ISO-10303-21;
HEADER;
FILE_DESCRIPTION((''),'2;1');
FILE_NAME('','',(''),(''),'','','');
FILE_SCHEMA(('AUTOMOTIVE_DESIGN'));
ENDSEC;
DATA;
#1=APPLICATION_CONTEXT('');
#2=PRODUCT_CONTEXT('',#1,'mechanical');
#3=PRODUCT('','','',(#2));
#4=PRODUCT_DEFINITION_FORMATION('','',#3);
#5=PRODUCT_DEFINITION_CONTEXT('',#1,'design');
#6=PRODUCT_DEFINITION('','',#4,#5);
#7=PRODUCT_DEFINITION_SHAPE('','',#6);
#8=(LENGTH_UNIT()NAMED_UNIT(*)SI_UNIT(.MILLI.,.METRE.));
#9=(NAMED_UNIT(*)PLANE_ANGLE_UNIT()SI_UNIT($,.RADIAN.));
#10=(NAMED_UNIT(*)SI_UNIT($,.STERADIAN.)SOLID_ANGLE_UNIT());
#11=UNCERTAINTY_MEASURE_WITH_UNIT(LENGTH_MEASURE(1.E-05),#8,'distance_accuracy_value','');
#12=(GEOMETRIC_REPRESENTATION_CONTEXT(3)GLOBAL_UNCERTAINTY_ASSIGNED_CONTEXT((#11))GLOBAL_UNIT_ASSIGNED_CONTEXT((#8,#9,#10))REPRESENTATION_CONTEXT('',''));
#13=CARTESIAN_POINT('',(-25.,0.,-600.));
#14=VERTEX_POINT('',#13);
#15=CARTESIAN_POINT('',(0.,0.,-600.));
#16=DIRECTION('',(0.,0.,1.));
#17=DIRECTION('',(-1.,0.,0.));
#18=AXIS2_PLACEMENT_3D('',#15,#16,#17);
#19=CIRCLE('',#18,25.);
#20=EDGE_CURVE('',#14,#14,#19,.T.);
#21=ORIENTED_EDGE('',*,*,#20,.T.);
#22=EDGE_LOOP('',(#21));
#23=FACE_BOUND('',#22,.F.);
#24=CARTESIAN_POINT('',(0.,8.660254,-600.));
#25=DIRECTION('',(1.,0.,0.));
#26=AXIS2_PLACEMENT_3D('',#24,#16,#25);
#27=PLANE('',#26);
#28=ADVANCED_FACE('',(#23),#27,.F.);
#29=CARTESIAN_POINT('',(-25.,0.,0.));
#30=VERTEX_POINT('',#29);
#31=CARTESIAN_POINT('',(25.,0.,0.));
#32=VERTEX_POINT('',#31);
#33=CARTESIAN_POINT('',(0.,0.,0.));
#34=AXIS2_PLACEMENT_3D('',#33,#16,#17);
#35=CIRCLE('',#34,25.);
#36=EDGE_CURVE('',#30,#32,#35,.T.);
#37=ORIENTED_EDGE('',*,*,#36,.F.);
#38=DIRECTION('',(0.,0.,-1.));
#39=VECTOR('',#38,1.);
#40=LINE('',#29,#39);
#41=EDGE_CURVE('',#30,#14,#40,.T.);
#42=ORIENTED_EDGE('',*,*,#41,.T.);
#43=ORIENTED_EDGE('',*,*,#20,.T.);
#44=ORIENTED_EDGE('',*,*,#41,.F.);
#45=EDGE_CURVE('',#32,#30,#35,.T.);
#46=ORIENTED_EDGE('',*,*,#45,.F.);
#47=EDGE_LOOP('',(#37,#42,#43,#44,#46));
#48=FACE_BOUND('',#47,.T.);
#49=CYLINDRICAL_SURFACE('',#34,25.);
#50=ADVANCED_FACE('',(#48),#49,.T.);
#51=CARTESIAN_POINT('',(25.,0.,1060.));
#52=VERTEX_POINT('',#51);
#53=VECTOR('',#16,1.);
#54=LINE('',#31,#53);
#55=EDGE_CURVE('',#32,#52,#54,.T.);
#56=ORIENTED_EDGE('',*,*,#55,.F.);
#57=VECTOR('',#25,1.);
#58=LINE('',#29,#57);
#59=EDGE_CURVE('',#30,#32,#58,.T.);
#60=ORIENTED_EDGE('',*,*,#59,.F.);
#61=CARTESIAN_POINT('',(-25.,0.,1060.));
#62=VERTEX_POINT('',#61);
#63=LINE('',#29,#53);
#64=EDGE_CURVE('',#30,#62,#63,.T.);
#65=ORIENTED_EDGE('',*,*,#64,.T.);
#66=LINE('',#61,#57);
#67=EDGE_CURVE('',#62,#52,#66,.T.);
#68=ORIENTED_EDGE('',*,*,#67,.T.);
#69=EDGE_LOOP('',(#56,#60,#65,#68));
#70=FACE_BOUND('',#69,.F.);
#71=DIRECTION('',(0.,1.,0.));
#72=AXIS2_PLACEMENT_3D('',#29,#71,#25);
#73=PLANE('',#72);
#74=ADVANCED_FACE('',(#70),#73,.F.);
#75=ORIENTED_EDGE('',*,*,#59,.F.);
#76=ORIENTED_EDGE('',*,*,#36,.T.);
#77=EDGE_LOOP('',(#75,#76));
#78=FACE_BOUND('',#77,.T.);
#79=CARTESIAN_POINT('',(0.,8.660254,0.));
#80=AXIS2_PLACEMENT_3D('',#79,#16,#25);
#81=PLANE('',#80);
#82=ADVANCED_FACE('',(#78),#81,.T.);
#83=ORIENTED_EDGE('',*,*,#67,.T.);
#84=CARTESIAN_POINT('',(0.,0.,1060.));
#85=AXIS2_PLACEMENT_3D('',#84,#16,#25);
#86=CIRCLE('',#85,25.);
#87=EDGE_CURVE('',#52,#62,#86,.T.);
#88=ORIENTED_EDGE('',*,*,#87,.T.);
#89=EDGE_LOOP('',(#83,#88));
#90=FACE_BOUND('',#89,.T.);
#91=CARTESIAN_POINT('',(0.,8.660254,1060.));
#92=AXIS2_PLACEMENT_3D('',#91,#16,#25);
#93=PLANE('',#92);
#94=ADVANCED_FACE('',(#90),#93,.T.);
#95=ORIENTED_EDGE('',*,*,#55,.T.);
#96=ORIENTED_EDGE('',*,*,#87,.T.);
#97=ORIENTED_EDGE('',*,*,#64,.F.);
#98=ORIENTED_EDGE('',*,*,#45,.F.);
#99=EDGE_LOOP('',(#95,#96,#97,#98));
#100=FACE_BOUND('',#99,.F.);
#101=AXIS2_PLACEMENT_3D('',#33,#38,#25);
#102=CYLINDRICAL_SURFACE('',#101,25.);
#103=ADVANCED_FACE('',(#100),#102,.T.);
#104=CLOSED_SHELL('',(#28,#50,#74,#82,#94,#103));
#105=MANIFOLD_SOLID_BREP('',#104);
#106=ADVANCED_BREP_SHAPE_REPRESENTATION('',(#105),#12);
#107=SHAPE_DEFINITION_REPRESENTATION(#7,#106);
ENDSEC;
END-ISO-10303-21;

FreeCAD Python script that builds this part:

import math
import FreeCAD as App
import Part
import Sketcher
Q = App.Units.Quantity

doc = App.newDocument("Part")
params = doc.addObject("Spreadsheet::Sheet", "Params")
for row, (alias, value) in enumerate([
    ("sketch1_diameter", "50 mm"),
    ("pad1_length", "600 mm"),
    ("sketch2_radius", "25 mm"),
    ("pad2_length", "1060 mm"),
], start=1):
    params.set(f"A{row}", alias)
    params.set(f"B{row}", "=" + value)
    params.setAlias(f"B{row}", alias)

body = doc.addObject("PartDesign::Body", "Body")

# Sketch on XY plane
sketch1 = doc.addObject("Sketcher::SketchObject", "Sketch")
body.addObject(sketch1)
sketch1.AttachmentSupport = (doc.XY_Plane, [""])
sketch1.MapMode = "FlatFace"
sketch1.addGeometry(Part.Circle(App.Vector(0, 0, 0), App.Vector(0, 0, 1), 25), False)
sketch1.addConstraint([
    Sketcher.Constraint("Coincident", 0, 3, -1, 1),
    Sketcher.Constraint("Diameter", 0, Q("50 mm")),
])
sketch1.setExpression("Constraints[1]", "Params.sketch1_diameter")
pad1 = doc.addObject("PartDesign::Pad", "Pad")
body.addObject(pad1)
pad1.Profile = sketch1
pad1.setExpression("Length", "Params.pad1_length")
pad1.Reversed = True

# Sketch on XY plane
sketch2 = doc.addObject("Sketcher::SketchObject", "Sketch001")
body.addObject(sketch2)
sketch2.AttachmentSupport = (doc.XY_Plane, [""])
sketch2.MapMode = "FlatFace"
sketch2.addGeometry([
    Part.LineSegment(App.Vector(-25, 0, 0), App.Vector(25, 0, 0)),
    Part.ArcOfCircle(Part.Circle(App.Vector(0, 0, 0), App.Vector(0, 0, 1), 25), math.radians(0), math.radians(180)),
], False)
sketch2.addConstraint([
    Sketcher.Constraint("Coincident", 0, 1, 1, 2),
    Sketcher.Constraint("Coincident", 1, 1, 0, 2),
    Sketcher.Constraint("Horizontal", 0),
    Sketcher.Constraint("Coincident", 1, 3, -1, 1),
    Sketcher.Constraint("PointOnObject", 0, 1, -1),
    Sketcher.Constraint("Radius", 1, Q("25 mm")),
])
sketch2.setExpression("Constraints[5]", "Params.sketch2_radius")
pad2 = doc.addObject("PartDesign::Pad", "Pad001")
body.addObject(pad2)
pad2.Profile = sketch2
pad2.setExpression("Length", "Params.pad2_length")

doc.recompute()
